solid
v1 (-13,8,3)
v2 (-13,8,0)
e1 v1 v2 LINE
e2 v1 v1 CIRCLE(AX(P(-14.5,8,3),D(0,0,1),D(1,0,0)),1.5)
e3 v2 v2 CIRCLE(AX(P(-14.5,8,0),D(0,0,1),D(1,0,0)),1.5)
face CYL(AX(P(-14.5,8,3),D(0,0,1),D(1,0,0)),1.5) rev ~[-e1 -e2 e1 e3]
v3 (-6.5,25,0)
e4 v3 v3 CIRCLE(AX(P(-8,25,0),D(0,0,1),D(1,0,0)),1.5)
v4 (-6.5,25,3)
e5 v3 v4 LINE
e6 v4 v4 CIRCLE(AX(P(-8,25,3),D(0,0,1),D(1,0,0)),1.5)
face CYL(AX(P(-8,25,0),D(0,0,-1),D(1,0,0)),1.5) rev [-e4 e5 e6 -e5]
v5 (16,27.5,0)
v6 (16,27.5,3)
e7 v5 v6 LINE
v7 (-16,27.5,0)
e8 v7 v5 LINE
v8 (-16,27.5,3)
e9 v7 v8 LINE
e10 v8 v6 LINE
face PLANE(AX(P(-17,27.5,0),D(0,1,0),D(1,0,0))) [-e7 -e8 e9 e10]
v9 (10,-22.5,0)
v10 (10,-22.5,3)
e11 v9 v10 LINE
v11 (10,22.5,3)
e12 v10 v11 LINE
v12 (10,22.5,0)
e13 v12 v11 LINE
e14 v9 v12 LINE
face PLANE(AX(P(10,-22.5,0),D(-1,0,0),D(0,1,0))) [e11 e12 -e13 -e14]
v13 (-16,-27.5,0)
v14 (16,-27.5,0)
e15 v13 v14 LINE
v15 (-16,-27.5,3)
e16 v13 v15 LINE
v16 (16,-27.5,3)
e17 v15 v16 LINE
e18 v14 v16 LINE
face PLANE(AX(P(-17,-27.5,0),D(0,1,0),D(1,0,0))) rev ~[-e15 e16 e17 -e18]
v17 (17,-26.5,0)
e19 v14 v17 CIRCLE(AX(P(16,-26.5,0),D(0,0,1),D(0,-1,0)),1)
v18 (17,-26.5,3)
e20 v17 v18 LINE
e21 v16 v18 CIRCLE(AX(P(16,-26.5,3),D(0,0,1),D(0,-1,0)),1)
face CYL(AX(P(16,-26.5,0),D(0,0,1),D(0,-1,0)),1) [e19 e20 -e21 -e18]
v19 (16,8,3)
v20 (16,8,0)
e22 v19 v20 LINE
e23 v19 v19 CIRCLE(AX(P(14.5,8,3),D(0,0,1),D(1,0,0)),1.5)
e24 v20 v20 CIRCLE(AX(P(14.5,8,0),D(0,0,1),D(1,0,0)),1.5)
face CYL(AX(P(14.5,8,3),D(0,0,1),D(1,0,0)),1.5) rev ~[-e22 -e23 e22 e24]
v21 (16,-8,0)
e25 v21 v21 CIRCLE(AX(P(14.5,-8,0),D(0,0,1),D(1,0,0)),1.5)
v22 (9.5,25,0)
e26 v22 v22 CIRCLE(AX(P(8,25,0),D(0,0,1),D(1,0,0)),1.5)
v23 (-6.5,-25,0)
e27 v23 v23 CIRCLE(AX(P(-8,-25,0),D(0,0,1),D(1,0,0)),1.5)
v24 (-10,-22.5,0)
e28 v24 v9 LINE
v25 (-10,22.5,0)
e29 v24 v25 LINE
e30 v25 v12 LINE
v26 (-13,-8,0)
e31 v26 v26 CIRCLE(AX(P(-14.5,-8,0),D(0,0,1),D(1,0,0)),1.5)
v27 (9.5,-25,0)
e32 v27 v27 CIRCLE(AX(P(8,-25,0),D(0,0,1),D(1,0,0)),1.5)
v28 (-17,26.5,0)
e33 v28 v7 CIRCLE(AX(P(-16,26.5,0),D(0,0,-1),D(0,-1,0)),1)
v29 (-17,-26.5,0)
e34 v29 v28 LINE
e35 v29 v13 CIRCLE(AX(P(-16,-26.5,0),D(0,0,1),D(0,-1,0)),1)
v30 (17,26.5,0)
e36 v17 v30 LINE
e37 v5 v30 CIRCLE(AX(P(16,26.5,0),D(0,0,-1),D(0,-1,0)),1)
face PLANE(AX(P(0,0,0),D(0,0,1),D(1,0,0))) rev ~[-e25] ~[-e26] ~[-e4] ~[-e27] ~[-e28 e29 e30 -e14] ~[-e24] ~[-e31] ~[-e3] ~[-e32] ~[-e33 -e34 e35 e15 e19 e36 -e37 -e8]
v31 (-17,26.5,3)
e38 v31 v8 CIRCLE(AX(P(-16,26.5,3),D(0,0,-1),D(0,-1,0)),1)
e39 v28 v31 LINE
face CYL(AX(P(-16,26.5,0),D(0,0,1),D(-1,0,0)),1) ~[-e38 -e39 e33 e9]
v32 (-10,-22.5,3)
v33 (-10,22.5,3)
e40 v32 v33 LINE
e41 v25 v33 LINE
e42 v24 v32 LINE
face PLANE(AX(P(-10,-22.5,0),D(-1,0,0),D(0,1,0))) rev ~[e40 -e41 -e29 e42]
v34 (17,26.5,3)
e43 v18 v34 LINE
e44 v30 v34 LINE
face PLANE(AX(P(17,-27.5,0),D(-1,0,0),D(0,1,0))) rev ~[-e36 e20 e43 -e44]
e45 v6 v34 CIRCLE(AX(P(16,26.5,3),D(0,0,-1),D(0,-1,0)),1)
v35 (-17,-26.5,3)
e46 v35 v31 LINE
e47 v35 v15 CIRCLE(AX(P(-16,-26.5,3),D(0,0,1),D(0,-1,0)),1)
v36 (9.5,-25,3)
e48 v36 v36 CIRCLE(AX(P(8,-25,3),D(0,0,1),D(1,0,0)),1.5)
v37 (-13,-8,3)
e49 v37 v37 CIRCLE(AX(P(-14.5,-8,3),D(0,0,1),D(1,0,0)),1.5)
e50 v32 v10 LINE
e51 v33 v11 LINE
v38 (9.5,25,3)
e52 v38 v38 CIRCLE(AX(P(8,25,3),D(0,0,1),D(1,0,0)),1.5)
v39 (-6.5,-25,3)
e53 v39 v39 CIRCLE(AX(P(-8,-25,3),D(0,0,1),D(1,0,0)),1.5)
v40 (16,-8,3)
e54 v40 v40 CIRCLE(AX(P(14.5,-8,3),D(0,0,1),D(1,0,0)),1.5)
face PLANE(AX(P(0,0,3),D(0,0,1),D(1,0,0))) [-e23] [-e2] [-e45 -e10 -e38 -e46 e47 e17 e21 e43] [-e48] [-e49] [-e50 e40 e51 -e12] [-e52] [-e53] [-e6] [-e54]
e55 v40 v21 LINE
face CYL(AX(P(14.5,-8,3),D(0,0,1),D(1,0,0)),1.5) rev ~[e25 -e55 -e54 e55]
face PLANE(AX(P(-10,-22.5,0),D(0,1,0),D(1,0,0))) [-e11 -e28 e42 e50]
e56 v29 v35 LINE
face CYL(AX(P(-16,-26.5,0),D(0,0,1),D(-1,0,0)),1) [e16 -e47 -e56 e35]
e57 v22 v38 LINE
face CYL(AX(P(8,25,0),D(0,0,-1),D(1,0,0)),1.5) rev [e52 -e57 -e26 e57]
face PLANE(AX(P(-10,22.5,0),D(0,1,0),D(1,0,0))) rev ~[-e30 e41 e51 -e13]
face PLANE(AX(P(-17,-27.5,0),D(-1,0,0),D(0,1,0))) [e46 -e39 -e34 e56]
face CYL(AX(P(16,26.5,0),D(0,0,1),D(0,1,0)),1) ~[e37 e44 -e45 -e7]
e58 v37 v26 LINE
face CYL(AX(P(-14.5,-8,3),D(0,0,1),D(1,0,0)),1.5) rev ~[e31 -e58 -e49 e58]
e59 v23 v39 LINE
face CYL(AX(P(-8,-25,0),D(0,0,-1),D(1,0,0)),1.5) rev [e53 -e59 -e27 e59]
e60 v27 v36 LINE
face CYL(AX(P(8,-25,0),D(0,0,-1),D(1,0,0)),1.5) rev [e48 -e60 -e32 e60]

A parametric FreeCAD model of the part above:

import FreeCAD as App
import Part
import Sketcher
from FreeCAD import Vector
Q = App.Units.Quantity


def edges_at(feature, points):
    """Names of the edges that pass closest to the given points."""
    edges = feature.Shape.Edges
    near = lambda p: min(range(len(edges)), key=lambda i: edges[i].distToShape(Part.Vertex(*p))[0])
    return sorted({f"Edge{near(p) + 1}" for p in points})


def add_polygon(sketch, points):
    """Adds a closed chain of lines whose ends are joined by coincident constraints."""
    first, n = sketch.GeometryCount, len(points)
    for a, b in zip(points, points[1:] + points[:1]):
        sketch.addGeometry(Part.LineSegment(App.Vector(*a, 0), App.Vector(*b, 0)), False)
    for i in range(n):
        sketch.addConstraint(Sketcher.Constraint("Coincident", first + i, 2, first + (i + 1) % n, 1))

doc = App.newDocument("Part")
body = doc.addObject("PartDesign::Body", "Body")

sketch1 = doc.addObject("Sketcher::SketchObject", "Sketch")
body.addObject(sketch1)
sketch1.AttachmentSupport = (doc.XY_Plane, [""])
sketch1.MapMode = "FlatFace"
add_polygon(sketch1, [(-17, 27.5), (-17, -27.5), (17, -27.5), (17, 27.5)])
sketch1.addGeometry(Part.Circle(Vector(-8, -25, 0), Vector(0, 0, 1), 1.5), False)
sketch1.addGeometry(Part.Circle(Vector(8, -25, 0), Vector(0, 0, 1), 1.5), False)
sketch1.addGeometry(Part.Circle(Vector(-8, 25, 0), Vector(0, 0, 1), 1.5), False)
add_polygon(sketch1, [(10, -22.5), (-10, -22.5), (-10, 22.5), (10, 22.5)])
sketch1.addGeometry(Part.Circle(Vector(8, 25, 0), Vector(0, 0, 1), 1.5), False)
sketch1.addConstraint(Sketcher.Constraint("Vertical", 0))
sketch1.addConstraint(Sketcher.Constraint("Horizontal", 1))
sketch1.addConstraint(Sketcher.Constraint("Vertical", 2))
sketch1.addConstraint(Sketcher.Constraint("Horizontal", 3))
sketch1.addConstraint(Sketcher.Constraint("Horizontal", 7))
sketch1.addConstraint(Sketcher.Constraint("Vertical", 8))
sketch1.addConstraint(Sketcher.Constraint("Horizontal", 9))
sketch1.addConstraint(Sketcher.Constraint("Vertical", 10))
sketch1.addConstraint(Sketcher.Constraint("Equal", 4, 5))
sketch1.addConstraint(Sketcher.Constraint("Equal", 5, 6))
sketch1.addConstraint(Sketcher.Constraint("Equal", 6, 11))
sketch1.addConstraint(Sketcher.Constraint("Symmetric", 5, 3, 6, 3, -1, 1))
sketch1.addConstraint(Sketcher.Constraint("Symmetric", 4, 3, 11, 3, -1, 1))
sketch1.addConstraint(Sketcher.Constraint("Symmetric", 0, 2, 2, 2, -1, 1))
sketch1.addConstraint(Sketcher.Constraint("Symmetric", 7, 2, 9, 2, -1, 1))
sketch1.addConstraint(Sketcher.Constraint("Symmetric", 4, 3, 5, 3, -2))
sketch1.addConstraint(Sketcher.Constraint("Diameter", 4, Q("3 mm")))
sketch1.addConstraint(Sketcher.Constraint("DistanceX", 1, 1, 1, 2, Q("34 mm")))
sketch1.addConstraint(Sketcher.Constraint("DistanceX", 7, 2, 7, 1, Q("20 mm")))
sketch1.addConstraint(Sketcher.Constraint("DistanceY", 0, 2, 0, 1, Q("55 mm")))
sketch1.addConstraint(Sketcher.Constraint("DistanceY", 8, 1, 8, 2, Q("45 mm")))
sketch1.addConstraint(Sketcher.Constraint("DistanceX", 4, 3, -1, 1, Q("8 mm")))
sketch1.addConstraint(Sketcher.Constraint("DistanceY", 4, 3, -1, 1, Q("25 mm")))
pad1 = doc.addObject("PartDesign::Pad", "Pad")
body.addObject(pad1)
pad1.Profile = sketch1
pad1.Length = 3

sketch2 = doc.addObject("Sketcher::SketchObject", "Sketch001")
body.addObject(sketch2)
sketch2.AttachmentSupport = (doc.XY_Plane, [""])
sketch2.MapMode = "FlatFace"
sketch2.AttachmentOffset = App.Placement(Vector(0, 0, 3), App.Rotation())
sketch2.addGeometry(Part.Circle(Vector(-14.5, 8, 0), Vector(0, 0, 1), 1.5), False)
sketch2.addGeometry(Part.Circle(Vector(14.5, 8, 0), Vector(0, 0, 1), 1.5), False)
sketch2.addGeometry(Part.Circle(Vector(-14.5, -8, 0), Vector(0, 0, 1), 1.5), False)
sketch2.addGeometry(Part.Circle(Vector(14.5, -8, 0), Vector(0, 0, 1), 1.5), False)
sketch2.addConstraint(Sketcher.Constraint("Equal", 0, 1))
sketch2.addConstraint(Sketcher.Constraint("Equal", 1, 2))
sketch2.addConstraint(Sketcher.Constraint("Equal", 2, 3))
sketch2.addConstraint(Sketcher.Constraint("Symmetric", 1, 3, 2, 3, -1, 1))
sketch2.addConstraint(Sketcher.Constraint("Symmetric", 0, 3, 3, 3, -1, 1))
sketch2.addConstraint(Sketcher.Constraint("Symmetric", 0, 3, 1, 3, -2))
sketch2.addConstraint(Sketcher.Constraint("Diameter", 0, Q("3 mm")))
sketch2.addConstraint(Sketcher.Constraint("DistanceY", -1, 1, 0, 3, Q("8 mm")))
sketch2.addConstraint(Sketcher.Constraint("DistanceX", 0, 3, 1, 3, Q("29 mm")))
pocket1 = doc.addObject("PartDesign::Pocket", "Pocket")
body.addObject(pocket1)
pocket1.Profile = sketch2
pocket1.Length = 5
doc.recompute()

fillet = doc.addObject("PartDesign::Fillet", "Fillet")
body.addObject(fillet)
fillet.Base = (pocket1, edges_at(pocket1, [
    (-17, 27.5, 1.5),
    (17, 27.5, 1.5),
    (17, -27.5, 1.5),
    (-17, -27.5, 1.5),
]))
fillet.Radius = 1

doc.recompute()
